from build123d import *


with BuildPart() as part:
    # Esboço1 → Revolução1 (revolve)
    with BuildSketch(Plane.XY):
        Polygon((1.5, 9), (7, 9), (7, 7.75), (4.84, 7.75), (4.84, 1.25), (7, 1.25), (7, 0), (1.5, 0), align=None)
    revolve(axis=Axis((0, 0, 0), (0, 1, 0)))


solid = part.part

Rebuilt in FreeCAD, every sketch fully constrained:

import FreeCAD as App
import Part
import Sketcher
Q = App.Units.Quantity

doc = App.newDocument("Part")
body = doc.addObject("PartDesign::Body", "Body")

# Sketch on XY plane
sketch1 = body.newObject("Sketcher::SketchObject", "Sketch")
sketch1.AttachmentSupport = (doc.getObject("XY_Plane"), [""])
sketch1.MapMode = "FlatFace"
sketch1.addGeometry(Part.LineSegment(App.Vector(7, 9, 0), App.Vector(1.5, 9, 0)), False)
sketch1.addGeometry(Part.LineSegment(App.Vector(1.5, 9, 0), App.Vector(1.5, 0, 0)), False)
sketch1.addGeometry(Part.LineSegment(App.Vector(1.5, 0, 0), App.Vector(7, 0, 0)), False)
sketch1.addGeometry(Part.LineSegment(App.Vector(7, 0, 0), App.Vector(7, 1.2, 0)), False)
sketch1.addGeometry(Part.LineSegment(App.Vector(7, 1.2, 0), App.Vector(4.8, 1.2, 0)), False)
sketch1.addGeometry(Part.LineSegment(App.Vector(4.8, 1.2, 0), App.Vector(4.8, 7.8, 0)), False)
sketch1.addGeometry(Part.LineSegment(App.Vector(4.8, 7.8, 0), App.Vector(7, 7.8, 0)), False)
sketch1.addGeometry(Part.LineSegment(App.Vector(7, 7.8, 0), App.Vector(7, 9, 0)), False)
sketch1.addConstraint(Sketcher.Constraint("Coincident", 0, 2, 1, 1))
sketch1.addConstraint(Sketcher.Constraint("Coincident", 1, 2, 2, 1))
sketch1.addConstraint(Sketcher.Constraint("Coincident", 2, 2, 3, 1))
sketch1.addConstraint(Sketcher.Constraint("Coincident", 3, 2, 4, 1))
sketch1.addConstraint(Sketcher.Constraint("Coincident", 4, 2, 5, 1))
sketch1.addConstraint(Sketcher.Constraint("Coincident", 5, 2, 6, 1))
sketch1.addConstraint(Sketcher.Constraint("Coincident", 6, 2, 7, 1))
sketch1.addConstraint(Sketcher.Constraint("Coincident", 7, 2, 0, 1))
sketch1.addConstraint(Sketcher.Constraint("Horizontal", 0))
sketch1.addConstraint(Sketcher.Constraint("Vertical", 1))
sketch1.addConstraint(Sketcher.Constraint("Horizontal", 2))
sketch1.addConstraint(Sketcher.Constraint("Vertical", 3))
sketch1.addConstraint(Sketcher.Constraint("Horizontal", 4))
sketch1.addConstraint(Sketcher.Constraint("Vertical", 5))
sketch1.addConstraint(Sketcher.Constraint("Horizontal", 6))
sketch1.addConstraint(Sketcher.Constraint("Vertical", 7))
sketch1.addConstraint(Sketcher.Constraint("PointOnObject", 1, 2, -1))
sketch1.addConstraint(Sketcher.Constraint("Vertical", 3, 2, 6, 2))
sketch1.addConstraint(Sketcher.Constraint("Equal", 3, 7))
sketch1.addConstraint(Sketcher.Constraint("DistanceY", 1, 2, 1, 1, Q("9 mm")))
sketch1.addConstraint(Sketcher.Constraint("DistanceX", 0, 2, 0, 1, Q("5.5 mm")))
sketch1.addConstraint(Sketcher.Constraint("DistanceY", 5, 1, 5, 2, Q("6.5 mm")))
sketch1.addConstraint(Sketcher.Constraint("DistanceX", -1, 1, 2, 2, Q("7 mm")))
sketch1.addConstraint(Sketcher.Constraint("DistanceX", 4, 2, 4, 1, Q("2.16 mm")))
revolution = body.newObject("PartDesign::Revolution", "Revolution")
revolution.Profile = sketch1
revolution.ReferenceAxis = (sketch1, ["V_Axis"])
revolution.Angle = 360

doc.recompute()
